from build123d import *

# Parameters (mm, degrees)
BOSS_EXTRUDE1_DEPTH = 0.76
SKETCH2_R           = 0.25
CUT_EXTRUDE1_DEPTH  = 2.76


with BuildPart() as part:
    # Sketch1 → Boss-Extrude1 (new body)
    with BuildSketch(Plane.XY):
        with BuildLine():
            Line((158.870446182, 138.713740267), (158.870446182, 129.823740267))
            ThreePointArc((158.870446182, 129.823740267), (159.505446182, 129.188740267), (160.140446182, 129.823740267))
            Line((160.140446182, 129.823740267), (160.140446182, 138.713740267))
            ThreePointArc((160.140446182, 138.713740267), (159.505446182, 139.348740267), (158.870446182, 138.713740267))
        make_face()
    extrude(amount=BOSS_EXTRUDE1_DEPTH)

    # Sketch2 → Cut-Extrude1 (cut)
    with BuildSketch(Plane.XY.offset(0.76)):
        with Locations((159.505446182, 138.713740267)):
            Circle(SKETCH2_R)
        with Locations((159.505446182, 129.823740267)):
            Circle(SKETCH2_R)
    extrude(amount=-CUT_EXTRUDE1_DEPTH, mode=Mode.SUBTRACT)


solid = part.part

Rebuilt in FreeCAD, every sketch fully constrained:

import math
import FreeCAD as App
import Part
import Sketcher

V = App.Vector
Q = App.Units.Quantity

doc = App.newDocument("Part")
params = doc.addObject("Spreadsheet::Sheet", "Params")
for row, (alias, value) in enumerate([
    ("sketch1_radius", "0.025 in"),
    ("sketch1_height", "0.35 in"),
    ("pad1_length", "0.76 mm"),
    ("pocket1_length", "2.76 mm"),
], start=1):
    params.set(f"A{row}", alias)
    params.set(f"B{row}", "=" + value)
    params.setAlias(f"B{row}", alias)

body = doc.addObject("PartDesign::Body", "Body")

# Sketch on XY plane
sketch1 = doc.addObject("Sketcher::SketchObject", "Sketch")
body.addObject(sketch1)
sketch1.AttachmentSupport = (doc.XY_Plane, [""])
sketch1.MapMode = "FlatFace"
sketch1.addGeometry(Part.LineSegment(V(158.870446, 138.71374, 0), V(158.870446, 129.82374, 0)), False)
sketch1.addGeometry(Part.ArcOfCircle(Part.Circle(V(159.505446, 129.82374, 0), V(0, 0, 1), 0.635), math.radians(180), math.radians(360)), False)
sketch1.addGeometry(Part.LineSegment(V(160.140446, 129.82374, 0), V(160.140446, 138.71374, 0)), False)
sketch1.addGeometry(Part.ArcOfCircle(Part.Circle(V(159.505446, 138.71374, 0), V(0, 0, 1), 0.635), math.radians(0), math.radians(180)), False)
sketch1.addConstraint(Sketcher.Constraint("Tangent", 0, 2, 1, 1))
sketch1.addConstraint(Sketcher.Constraint("Tangent", 1, 2, 2, 1))
sketch1.addConstraint(Sketcher.Constraint("Tangent", 2, 2, 3, 1))
sketch1.addConstraint(Sketcher.Constraint("Tangent", 3, 2, 0, 1))
sketch1.addConstraint(Sketcher.Constraint("Vertical", 0))
sketch1.addConstraint(Sketcher.Constraint("Vertical", 2))
sketch1.addConstraint(Sketcher.Constraint("Radius", 1, Q("0.025 in")))
sketch1.addConstraint(Sketcher.Constraint("DistanceY", 0, 2, 0, 1, Q("0.35 in")))
sketch1.addConstraint(Sketcher.Constraint("DistanceY", -1, 1, 1, 3, 129.82374))
sketch1.addConstraint(Sketcher.Constraint("DistanceX", -1, 1, 1, 3, 159.505446))
sketch1.setExpression("Constraints[6]", "Params.sketch1_radius")
sketch1.setExpression("Constraints[7]", "Params.sketch1_height")
pad1 = doc.addObject("PartDesign::Pad", "Pad")
body.addObject(pad1)
pad1.Profile = sketch1
pad1.setExpression("Length", "Params.pad1_length")

# Sketch on XY plane
sketch2 = doc.addObject("Sketcher::SketchObject", "Sketch001")
body.addObject(sketch2)
sketch2.AttachmentSupport = (doc.XY_Plane, [""])
sketch2.MapMode = "FlatFace"
sketch2.AttachmentOffset = App.Placement(V(0, 0, 0.76), App.Rotation())
sketch2.addGeometry(Part.Circle(V(159.505446, 138.71374, 0), V(0, 0, 1), 0.25), False)
sketch2.addGeometry(Part.Circle(V(159.505446, 129.82374, 0), V(0, 0, 1), 0.25), False)
sketch2.addConstraint(Sketcher.Constraint("Equal", 0, 1))
sketch2.addConstraint(Sketcher.Constraint("Vertical", 0, 3, 1, 3))
sketch2.addConstraint(Sketcher.Constraint("Diameter", 0, 0.5))
sketch2.addConstraint(Sketcher.Constraint("DistanceY", 1, 3, 0, 3, Q("0.35 in")))
sketch2.addConstraint(Sketcher.Constraint("DistanceY", -1, 1, 0, 3, 138.71374))
sketch2.addConstraint(Sketcher.Constraint("DistanceX", -1, 1, 0, 3, 159.505446))
pocket1 = doc.addObject("PartDesign::Pocket", "Pocket")
body.addObject(pocket1)
pocket1.Profile = sketch2
pocket1.setExpression("Length", "Params.pocket1_length")

doc.recompute()
